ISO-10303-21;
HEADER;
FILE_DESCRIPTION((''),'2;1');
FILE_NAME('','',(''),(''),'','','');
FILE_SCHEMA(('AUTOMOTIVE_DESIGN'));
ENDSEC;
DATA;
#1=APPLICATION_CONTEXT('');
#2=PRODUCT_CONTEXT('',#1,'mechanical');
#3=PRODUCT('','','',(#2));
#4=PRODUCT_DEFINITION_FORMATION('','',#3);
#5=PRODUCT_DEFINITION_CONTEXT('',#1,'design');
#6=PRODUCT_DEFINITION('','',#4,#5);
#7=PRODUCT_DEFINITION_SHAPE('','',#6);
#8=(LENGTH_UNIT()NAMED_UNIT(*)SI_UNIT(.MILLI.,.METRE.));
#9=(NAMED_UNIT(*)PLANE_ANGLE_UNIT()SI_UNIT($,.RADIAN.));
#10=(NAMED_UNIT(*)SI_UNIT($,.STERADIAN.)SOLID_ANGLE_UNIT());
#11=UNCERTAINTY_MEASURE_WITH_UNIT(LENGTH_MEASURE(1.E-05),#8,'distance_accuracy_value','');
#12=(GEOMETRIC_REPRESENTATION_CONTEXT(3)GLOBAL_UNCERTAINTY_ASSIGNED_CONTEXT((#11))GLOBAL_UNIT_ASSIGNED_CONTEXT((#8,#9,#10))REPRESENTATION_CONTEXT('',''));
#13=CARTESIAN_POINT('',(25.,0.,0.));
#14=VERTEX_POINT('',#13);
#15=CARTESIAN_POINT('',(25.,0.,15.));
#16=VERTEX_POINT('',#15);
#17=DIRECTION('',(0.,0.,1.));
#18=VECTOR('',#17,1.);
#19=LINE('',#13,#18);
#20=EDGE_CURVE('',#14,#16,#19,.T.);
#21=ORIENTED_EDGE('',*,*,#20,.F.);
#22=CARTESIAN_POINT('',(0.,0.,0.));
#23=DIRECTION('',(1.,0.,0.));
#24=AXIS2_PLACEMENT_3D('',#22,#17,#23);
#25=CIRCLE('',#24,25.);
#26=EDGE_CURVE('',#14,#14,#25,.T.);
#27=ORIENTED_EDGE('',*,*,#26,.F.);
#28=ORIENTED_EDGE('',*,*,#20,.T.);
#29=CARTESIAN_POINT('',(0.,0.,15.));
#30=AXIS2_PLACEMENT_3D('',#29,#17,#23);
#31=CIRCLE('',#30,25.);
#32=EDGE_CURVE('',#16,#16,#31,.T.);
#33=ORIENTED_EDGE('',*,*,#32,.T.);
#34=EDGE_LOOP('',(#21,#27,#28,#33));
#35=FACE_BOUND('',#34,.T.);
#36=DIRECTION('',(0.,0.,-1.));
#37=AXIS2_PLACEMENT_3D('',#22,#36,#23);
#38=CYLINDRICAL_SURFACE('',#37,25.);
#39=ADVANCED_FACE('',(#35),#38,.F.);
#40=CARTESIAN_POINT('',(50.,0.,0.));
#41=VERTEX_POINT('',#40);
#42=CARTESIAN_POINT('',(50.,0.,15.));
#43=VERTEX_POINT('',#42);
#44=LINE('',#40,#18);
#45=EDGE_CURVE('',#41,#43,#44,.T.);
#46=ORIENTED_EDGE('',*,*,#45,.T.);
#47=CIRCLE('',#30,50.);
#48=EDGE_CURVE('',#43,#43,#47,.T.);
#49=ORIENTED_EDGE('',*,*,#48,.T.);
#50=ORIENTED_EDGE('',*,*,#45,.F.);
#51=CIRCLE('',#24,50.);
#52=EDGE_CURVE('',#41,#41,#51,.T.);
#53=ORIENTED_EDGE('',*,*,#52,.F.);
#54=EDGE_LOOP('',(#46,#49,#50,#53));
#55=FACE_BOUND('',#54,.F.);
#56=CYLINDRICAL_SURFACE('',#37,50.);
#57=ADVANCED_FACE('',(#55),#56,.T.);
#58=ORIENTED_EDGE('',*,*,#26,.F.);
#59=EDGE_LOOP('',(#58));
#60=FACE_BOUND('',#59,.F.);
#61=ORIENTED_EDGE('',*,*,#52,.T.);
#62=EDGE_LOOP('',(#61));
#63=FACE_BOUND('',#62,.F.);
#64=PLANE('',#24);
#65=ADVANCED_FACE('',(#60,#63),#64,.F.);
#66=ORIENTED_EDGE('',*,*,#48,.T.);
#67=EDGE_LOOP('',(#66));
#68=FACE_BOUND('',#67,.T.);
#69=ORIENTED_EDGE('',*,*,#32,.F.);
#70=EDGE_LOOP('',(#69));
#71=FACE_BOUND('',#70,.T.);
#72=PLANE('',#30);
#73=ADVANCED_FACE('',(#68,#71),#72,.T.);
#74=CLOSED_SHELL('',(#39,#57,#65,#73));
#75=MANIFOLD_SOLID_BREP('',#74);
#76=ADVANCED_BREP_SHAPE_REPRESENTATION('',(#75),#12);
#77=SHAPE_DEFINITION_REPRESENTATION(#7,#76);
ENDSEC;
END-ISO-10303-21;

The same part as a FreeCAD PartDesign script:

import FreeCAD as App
import Part
import Sketcher

V = App.Vector
Q = App.Units.Quantity

doc = App.newDocument("Part")
body = doc.addObject("PartDesign::Body", "Body")

sketch1 = body.newObject("Sketcher::SketchObject", "Sketch")
sketch1.AttachmentSupport = (doc.getObject("XY_Plane"), [""])
sketch1.MapMode = "FlatFace"
sketch1.addGeometry([
    Part.Circle(V(0, 0, 0), V(0, 0, 1), 50),
    Part.Circle(V(0, 0, 0), V(0, 0, 1), 25),
], False)
sketch1.addConstraint([
    Sketcher.Constraint("Coincident", 0, 3, -1, 1),
    Sketcher.Constraint("Coincident", 1, 3, -1, 1),
    Sketcher.Constraint("Diameter", 0, Q("100 mm")),
    Sketcher.Constraint("Diameter", 1, Q("50 mm")),
])
pad1 = body.newObject("PartDesign::Pad", "Pad")
pad1.Profile = sketch1
pad1.Length = 15

doc.recompute()
